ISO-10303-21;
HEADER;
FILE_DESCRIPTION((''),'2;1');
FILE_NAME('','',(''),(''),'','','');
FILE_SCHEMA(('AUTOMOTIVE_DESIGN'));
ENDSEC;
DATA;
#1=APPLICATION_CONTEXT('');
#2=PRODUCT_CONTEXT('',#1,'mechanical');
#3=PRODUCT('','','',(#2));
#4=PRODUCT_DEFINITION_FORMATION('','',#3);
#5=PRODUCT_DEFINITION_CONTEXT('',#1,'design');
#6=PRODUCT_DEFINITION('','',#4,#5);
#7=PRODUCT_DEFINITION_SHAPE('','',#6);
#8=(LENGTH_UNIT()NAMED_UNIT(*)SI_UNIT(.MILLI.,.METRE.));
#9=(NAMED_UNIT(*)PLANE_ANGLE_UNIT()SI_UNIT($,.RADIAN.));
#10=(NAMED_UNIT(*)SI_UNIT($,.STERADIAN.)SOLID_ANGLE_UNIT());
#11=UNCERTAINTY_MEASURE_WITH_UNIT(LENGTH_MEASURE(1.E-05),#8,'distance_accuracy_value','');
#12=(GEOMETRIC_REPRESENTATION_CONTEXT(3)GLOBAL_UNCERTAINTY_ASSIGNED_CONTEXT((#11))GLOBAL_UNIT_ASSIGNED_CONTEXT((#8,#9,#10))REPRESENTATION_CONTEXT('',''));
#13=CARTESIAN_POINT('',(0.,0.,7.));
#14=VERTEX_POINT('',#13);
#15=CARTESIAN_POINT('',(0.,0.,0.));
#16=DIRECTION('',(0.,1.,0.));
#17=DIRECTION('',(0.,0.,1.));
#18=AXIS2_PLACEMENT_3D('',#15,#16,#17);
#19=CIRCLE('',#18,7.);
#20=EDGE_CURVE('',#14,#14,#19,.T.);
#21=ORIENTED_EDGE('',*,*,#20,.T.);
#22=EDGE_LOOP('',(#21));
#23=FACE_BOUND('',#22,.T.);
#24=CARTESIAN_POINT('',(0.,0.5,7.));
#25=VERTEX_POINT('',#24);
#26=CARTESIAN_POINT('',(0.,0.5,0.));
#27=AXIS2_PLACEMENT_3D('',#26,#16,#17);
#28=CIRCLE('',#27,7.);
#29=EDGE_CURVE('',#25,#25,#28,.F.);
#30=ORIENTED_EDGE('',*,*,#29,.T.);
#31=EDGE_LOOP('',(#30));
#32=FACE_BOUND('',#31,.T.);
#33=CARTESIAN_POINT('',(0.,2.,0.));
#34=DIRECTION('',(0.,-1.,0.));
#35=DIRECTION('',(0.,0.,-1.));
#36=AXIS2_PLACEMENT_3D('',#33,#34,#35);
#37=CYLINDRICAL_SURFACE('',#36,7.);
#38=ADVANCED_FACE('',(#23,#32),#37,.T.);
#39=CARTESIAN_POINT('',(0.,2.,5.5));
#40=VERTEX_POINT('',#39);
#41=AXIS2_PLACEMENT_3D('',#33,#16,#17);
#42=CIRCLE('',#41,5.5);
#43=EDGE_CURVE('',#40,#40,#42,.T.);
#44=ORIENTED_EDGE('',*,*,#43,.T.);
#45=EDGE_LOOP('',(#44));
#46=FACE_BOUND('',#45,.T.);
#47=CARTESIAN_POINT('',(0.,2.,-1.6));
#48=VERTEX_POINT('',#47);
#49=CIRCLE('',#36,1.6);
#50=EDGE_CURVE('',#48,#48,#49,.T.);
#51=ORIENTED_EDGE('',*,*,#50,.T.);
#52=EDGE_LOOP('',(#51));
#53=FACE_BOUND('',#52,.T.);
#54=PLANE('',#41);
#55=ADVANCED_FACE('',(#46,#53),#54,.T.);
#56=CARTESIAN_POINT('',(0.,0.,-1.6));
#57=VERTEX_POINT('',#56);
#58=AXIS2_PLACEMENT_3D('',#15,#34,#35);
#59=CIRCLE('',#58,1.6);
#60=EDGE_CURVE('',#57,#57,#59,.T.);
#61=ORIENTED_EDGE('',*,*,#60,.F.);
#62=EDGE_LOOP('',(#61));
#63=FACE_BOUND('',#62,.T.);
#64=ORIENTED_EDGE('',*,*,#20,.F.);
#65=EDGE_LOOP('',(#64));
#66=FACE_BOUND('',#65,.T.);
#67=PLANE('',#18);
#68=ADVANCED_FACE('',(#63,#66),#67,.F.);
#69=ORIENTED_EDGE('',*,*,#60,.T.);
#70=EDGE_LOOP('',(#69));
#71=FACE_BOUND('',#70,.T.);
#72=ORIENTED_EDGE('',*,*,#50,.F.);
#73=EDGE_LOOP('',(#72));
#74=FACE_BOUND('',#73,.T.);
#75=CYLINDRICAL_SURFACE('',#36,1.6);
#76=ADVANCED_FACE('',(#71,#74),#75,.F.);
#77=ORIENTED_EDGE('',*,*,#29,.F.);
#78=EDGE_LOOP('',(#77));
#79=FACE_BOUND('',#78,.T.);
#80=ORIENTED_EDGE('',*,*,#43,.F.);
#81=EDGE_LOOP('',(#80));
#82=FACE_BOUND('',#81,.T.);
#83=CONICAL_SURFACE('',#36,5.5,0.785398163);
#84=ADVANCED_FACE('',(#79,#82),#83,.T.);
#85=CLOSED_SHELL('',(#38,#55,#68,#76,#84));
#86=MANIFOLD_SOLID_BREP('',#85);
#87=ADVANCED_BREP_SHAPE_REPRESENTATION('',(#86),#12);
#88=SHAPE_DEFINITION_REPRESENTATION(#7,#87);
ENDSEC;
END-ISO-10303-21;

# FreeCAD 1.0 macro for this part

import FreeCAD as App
import Part
import Sketcher


def edges_at(feature, points):
    """Names of the edges that pass closest to the given points."""
    edges = feature.Shape.Edges
    near = lambda p: min(range(len(edges)), key=lambda i: edges[i].distToShape(Part.Vertex(*p))[0])
    return sorted({f"Edge{near(p) + 1}" for p in points})

doc = App.newDocument("Part")
body = doc.addObject("PartDesign::Body", "Body")

# Sketch on XZ plane
sketch1 = body.newObject("Sketcher::SketchObject", "Sketch")
sketch1.AttachmentSupport = (doc.getObject("XZ_Plane"), [""])
sketch1.MapMode = "FlatFace"
sketch1.addGeometry(Part.Circle(App.Vector(0, 0, 0), App.Vector(0, 0, 1), 7), False)
sketch1.addConstraint([
    Sketcher.Constraint("Coincident", 0, 3, -1, 1),
    Sketcher.Constraint("Diameter", 0, 14.0),
])
pad1 = body.newObject("PartDesign::Pad", "Pad")
pad1.Profile = sketch1
pad1.Length = 2
pad1.Reversed = True
doc.recompute()

chamfer = body.newObject("PartDesign::Chamfer", "Chamfer")
chamfer.Base = (pad1, edges_at(pad1, [(-7, 2, 0)]))
chamfer.Size = 1.5

# Sketch on XZ plane
sketch2 = body.newObject("Sketcher::SketchObject", "Sketch001")
sketch2.AttachmentSupport = (doc.getObject("XZ_Plane"), [""])
sketch2.MapMode = "FlatFace"
sketch2.addGeometry(Part.Circle(App.Vector(0, 0, 0), App.Vector(0, 0, 1), 1.6), False)
sketch2.addConstraint([
    Sketcher.Constraint("Coincident", 0, 3, -1, 1),
    Sketcher.Constraint("Diameter", 0, 3.2),
])
pocket1 = body.newObject("PartDesign::Pocket", "Pocket")
pocket1.Profile = sketch2
pocket1.Type = "ThroughAll"

doc.recompute()
